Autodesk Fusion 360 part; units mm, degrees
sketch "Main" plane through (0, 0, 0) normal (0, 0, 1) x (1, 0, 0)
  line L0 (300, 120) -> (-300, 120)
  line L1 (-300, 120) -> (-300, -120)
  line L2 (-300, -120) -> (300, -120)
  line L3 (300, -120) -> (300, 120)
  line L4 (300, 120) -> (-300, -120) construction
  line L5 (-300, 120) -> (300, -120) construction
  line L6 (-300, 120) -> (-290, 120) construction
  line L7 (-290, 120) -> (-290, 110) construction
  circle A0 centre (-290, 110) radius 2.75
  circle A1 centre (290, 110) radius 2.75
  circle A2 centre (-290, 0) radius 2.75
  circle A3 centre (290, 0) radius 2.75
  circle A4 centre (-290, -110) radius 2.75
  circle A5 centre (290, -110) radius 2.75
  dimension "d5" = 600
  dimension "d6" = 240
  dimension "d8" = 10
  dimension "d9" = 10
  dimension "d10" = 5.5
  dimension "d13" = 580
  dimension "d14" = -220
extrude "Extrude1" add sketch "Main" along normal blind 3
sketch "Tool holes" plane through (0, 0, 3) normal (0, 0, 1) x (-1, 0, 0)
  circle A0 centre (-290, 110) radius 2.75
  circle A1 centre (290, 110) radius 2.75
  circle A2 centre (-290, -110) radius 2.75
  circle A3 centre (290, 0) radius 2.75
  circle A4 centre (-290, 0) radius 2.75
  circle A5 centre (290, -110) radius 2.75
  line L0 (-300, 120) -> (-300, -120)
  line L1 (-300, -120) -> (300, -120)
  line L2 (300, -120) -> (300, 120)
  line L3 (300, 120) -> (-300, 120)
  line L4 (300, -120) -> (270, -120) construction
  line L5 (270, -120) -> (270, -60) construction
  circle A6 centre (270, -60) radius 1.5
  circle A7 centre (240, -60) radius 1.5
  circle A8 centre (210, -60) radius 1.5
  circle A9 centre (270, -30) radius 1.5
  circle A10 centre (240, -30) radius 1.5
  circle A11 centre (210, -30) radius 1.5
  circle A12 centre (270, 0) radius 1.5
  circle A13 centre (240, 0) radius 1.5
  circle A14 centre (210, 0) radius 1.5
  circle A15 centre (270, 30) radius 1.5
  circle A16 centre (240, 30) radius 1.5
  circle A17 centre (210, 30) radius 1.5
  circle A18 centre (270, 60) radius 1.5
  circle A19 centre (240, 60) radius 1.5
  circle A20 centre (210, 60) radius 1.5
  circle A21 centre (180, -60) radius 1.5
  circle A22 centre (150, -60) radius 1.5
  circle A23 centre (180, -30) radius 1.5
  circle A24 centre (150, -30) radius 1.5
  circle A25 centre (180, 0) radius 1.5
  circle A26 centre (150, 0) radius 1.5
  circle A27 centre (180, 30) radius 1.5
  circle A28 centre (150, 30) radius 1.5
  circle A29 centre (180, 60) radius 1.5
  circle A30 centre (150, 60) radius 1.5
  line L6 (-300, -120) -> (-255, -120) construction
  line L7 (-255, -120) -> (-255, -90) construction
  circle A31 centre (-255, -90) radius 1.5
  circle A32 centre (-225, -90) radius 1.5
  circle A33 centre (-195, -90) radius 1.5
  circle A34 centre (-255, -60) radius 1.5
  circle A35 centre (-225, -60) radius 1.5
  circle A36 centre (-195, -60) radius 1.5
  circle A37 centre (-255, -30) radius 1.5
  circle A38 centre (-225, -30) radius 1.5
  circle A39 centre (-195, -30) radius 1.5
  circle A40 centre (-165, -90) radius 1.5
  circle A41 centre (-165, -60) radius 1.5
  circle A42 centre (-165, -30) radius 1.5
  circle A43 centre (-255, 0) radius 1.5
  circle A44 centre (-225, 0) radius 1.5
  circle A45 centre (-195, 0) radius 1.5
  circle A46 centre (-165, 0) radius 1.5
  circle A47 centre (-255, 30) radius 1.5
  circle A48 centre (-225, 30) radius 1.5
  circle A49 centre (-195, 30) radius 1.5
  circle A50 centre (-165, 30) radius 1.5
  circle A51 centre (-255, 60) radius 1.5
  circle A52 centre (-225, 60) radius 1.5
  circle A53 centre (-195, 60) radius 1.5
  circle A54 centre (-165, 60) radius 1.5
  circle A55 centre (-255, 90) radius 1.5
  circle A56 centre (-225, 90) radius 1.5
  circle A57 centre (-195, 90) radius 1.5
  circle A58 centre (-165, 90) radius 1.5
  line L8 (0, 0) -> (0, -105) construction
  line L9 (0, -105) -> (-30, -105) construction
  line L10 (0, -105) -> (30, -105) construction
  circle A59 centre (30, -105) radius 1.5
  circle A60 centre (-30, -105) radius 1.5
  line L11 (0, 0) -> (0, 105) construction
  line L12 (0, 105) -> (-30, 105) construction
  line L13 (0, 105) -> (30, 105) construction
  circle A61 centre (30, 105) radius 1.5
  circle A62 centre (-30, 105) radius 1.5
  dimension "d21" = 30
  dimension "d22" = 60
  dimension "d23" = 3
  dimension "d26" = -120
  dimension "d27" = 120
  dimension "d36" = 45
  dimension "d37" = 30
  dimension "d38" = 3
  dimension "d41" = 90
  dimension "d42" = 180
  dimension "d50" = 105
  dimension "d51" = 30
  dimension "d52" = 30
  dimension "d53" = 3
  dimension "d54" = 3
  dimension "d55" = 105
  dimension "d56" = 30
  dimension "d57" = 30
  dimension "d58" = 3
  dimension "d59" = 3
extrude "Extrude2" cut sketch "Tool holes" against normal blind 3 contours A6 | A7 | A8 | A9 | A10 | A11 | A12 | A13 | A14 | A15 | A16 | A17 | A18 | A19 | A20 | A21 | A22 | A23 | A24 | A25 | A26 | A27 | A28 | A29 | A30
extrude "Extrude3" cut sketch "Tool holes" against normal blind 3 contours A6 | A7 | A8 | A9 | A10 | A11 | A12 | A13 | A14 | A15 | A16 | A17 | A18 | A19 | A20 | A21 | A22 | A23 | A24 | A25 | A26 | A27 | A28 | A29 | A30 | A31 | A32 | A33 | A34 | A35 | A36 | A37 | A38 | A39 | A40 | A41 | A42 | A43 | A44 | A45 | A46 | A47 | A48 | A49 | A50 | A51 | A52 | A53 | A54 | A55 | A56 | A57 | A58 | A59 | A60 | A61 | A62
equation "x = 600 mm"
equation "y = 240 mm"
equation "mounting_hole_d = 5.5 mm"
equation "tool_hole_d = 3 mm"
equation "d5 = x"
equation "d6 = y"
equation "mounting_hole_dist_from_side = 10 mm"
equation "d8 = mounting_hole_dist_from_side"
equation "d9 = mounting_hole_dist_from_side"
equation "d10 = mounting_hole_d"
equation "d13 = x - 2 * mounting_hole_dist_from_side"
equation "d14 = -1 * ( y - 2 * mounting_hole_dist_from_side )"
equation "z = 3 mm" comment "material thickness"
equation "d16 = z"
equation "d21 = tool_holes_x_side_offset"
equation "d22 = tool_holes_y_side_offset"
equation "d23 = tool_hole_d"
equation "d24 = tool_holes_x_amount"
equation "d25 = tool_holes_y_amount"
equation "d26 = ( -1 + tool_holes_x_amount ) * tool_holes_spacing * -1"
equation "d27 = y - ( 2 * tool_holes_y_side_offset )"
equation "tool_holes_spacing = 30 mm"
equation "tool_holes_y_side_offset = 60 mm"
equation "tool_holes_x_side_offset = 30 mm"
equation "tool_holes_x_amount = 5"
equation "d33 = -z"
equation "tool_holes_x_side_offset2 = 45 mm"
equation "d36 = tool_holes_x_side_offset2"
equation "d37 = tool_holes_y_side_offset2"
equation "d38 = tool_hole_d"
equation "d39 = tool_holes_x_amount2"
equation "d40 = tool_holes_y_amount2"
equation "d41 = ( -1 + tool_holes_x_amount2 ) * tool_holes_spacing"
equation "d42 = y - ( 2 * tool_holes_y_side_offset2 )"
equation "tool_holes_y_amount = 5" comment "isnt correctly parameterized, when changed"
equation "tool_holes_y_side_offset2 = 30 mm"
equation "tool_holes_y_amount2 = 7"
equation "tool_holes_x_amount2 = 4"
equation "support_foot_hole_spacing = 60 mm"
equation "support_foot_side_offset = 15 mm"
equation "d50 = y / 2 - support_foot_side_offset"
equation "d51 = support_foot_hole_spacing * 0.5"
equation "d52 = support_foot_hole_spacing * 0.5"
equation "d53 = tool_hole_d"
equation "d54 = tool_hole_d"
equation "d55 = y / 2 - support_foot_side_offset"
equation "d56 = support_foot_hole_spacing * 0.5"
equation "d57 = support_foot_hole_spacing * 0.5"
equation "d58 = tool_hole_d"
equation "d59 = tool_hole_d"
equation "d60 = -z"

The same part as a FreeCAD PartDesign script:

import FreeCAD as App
import Part
import Sketcher


def add_polygon(sketch, points):
    """Adds a closed chain of lines whose ends are joined by coincident constraints."""
    first, n = sketch.GeometryCount, len(points)
    for a, b in zip(points, points[1:] + points[:1]):
        sketch.addGeometry(Part.LineSegment(App.Vector(*a, 0), App.Vector(*b, 0)), False)
    for i in range(n):
        sketch.addConstraint(Sketcher.Constraint("Coincident", first + i, 2, first + (i + 1) % n, 1))

doc = App.newDocument("Part")
body = doc.addObject("PartDesign::Body", "Body")

# Sketch on XY plane
sketch1 = doc.addObject("Sketcher::SketchObject", "Sketch")
body.addObject(sketch1)
sketch1.AttachmentSupport = (doc.XY_Plane, [""])
sketch1.MapMode = "FlatFace"
add_polygon(sketch1, [(300, -120), (300, 120), (-300, 120), (-300, -120)])  # lines 0-3
sketch1.addGeometry(Part.Circle(App.Vector(-290, -110, 0), App.Vector(0, 0, 1), 2.8), False)  # 4
sketch1.addGeometry(Part.Circle(App.Vector(290, -110, 0), App.Vector(0, 0, 1), 2.8), False)  # 5
sketch1.addGeometry(Part.Circle(App.Vector(-290, 0, 0), App.Vector(0, 0, 1), 2.8), False)  # 6
sketch1.addGeometry(Part.Circle(App.Vector(-290, 110, 0), App.Vector(0, 0, 1), 2.8), False)  # 7
sketch1.addGeometry(Part.Circle(App.Vector(290, 0, 0), App.Vector(0, 0, 1), 2.8), False)  # 8
sketch1.addGeometry(Part.Circle(App.Vector(290, 110, 0), App.Vector(0, 0, 1), 2.8), False)  # 9
sketch1.addConstraint([
    Sketcher.Constraint("Vertical", 0),
    Sketcher.Constraint("Horizontal", 1),
    Sketcher.Constraint("Vertical", 2),
    Sketcher.Constraint("Horizontal", 3),
    Sketcher.Constraint("Equal", 4, 5),
    Sketcher.Constraint("Equal", 5, 6),
    Sketcher.Constraint("Equal", 6, 7),
    Sketcher.Constraint("Equal", 7, 8),
    Sketcher.Constraint("Equal", 8, 9),
    Sketcher.Constraint("Symmetric", 5, 3, 7, 3, -1, 1),
    Sketcher.Constraint("Symmetric", 6, 3, 8, 3, -1, 1),
    Sketcher.Constraint("Symmetric", 4, 3, 9, 3, -1, 1),
    Sketcher.Constraint("Symmetric", 0, 2, 2, 2, -1, 1),
    Sketcher.Constraint("Symmetric", 4, 3, 5, 3, -2),
    Sketcher.Constraint("PointOnObject", 6, 3, -1),
    Sketcher.Constraint("Vertical", 4, 3, 6, 3),
    Sketcher.Constraint("Diameter", 4, 5.5),
    Sketcher.Constraint("DistanceX", 1, 2, 1, 1, 600.0),
    Sketcher.Constraint("DistanceY", 0, 1, 0, 2, 240.0),
    Sketcher.Constraint("DistanceX", 4, 3, 5, 3, 580.0),
    Sketcher.Constraint("DistanceY", 4, 3, 7, 3, 220.0),
])
pad1 = doc.addObject("PartDesign::Pad", "Pad")
body.addObject(pad1)
pad1.Profile = sketch1
pad1.Length = 3

# Sketch on XY plane
sketch2 = doc.addObject("Sketcher::SketchObject", "Sketch001")
body.addObject(sketch2)
sketch2.AttachmentSupport = (doc.XY_Plane, [""])
sketch2.MapMode = "FlatFace"
sketch2.AttachmentOffset = App.Placement(App.Vector(0, 0, 3), App.Rotation())
sketch2.addGeometry([
    Part.Circle(App.Vector(-270, 60, 0), App.Vector(0, 0, 1), 1.5),  # 0
    Part.Circle(App.Vector(-240, 60, 0), App.Vector(0, 0, 1), 1.5),  # 1
    Part.Circle(App.Vector(-210, 60, 0), App.Vector(0, 0, 1), 1.5),  # 2
    Part.Circle(App.Vector(-270, 30, 0), App.Vector(0, 0, 1), 1.5),  # 3
    Part.Circle(App.Vector(-240, 30, 0), App.Vector(0, 0, 1), 1.5),  # 4
    Part.Circle(App.Vector(-210, 30, 0), App.Vector(0, 0, 1), 1.5),  # 5
    Part.Circle(App.Vector(-270, 0, 0), App.Vector(0, 0, 1), 1.5),  # 6
    Part.Circle(App.Vector(-240, 0, 0), App.Vector(0, 0, 1), 1.5),  # 7
    Part.Circle(App.Vector(-210, 0, 0), App.Vector(0, 0, 1), 1.5),  # 8
    Part.Circle(App.Vector(-270, -30, 0), App.Vector(0, 0, 1), 1.5),  # 9
    Part.Circle(App.Vector(-240, -30, 0), App.Vector(0, 0, 1), 1.5),  # 10
    Part.Circle(App.Vector(-210, -30, 0), App.Vector(0, 0, 1), 1.5),  # 11
    Part.Circle(App.Vector(-270, -60, 0), App.Vector(0, 0, 1), 1.5),  # 12
    Part.Circle(App.Vector(-240, -60, 0), App.Vector(0, 0, 1), 1.5),  # 13
    Part.Circle(App.Vector(-210, -60, 0), App.Vector(0, 0, 1), 1.5),  # 14
    Part.Circle(App.Vector(-180, 60, 0), App.Vector(0, 0, 1), 1.5),  # 15
    Part.Circle(App.Vector(-150, 60, 0), App.Vector(0, 0, 1), 1.5),  # 16
    Part.Circle(App.Vector(-180, 30, 0), App.Vector(0, 0, 1), 1.5),  # 17
    Part.Circle(App.Vector(-150, 30, 0), App.Vector(0, 0, 1), 1.5),  # 18
    Part.Circle(App.Vector(-180, 0, 0), App.Vector(0, 0, 1), 1.5),  # 19
    Part.Circle(App.Vector(-150, 0, 0), App.Vector(0, 0, 1), 1.5),  # 20
    Part.Circle(App.Vector(-180, -30, 0), App.Vector(0, 0, 1), 1.5),  # 21
    Part.Circle(App.Vector(-150, -30, 0), App.Vector(0, 0, 1), 1.5),  # 22
    Part.Circle(App.Vector(-180, -60, 0), App.Vector(0, 0, 1), 1.5),  # 23
    Part.Circle(App.Vector(-150, -60, 0), App.Vector(0, 0, 1), 1.5),  # 24
], False)
sketch2.addConstraint([
    Sketcher.Constraint("Equal", 0, 1),
    Sketcher.Constraint("Equal", 1, 2),
    Sketcher.Constraint("Equal", 2, 3),
    Sketcher.Constraint("Equal", 3, 4),
    Sketcher.Constraint("Equal", 4, 5),
    Sketcher.Constraint("Equal", 5, 6),
    Sketcher.Constraint("Equal", 6, 7),
    Sketcher.Constraint("Equal", 7, 8),
    Sketcher.Constraint("Equal", 8, 9),
    Sketcher.Constraint("Equal", 9, 10),
    Sketcher.Constraint("Equal", 10, 11),
    Sketcher.Constraint("Equal", 11, 12),
    Sketcher.Constraint("Equal", 12, 13),
    Sketcher.Constraint("Equal", 13, 14),
    Sketcher.Constraint("Equal", 14, 15),
    Sketcher.Constraint("Equal", 15, 16),
    Sketcher.Constraint("Equal", 16, 17),
    Sketcher.Constraint("Equal", 17, 18),
    Sketcher.Constraint("Equal", 18, 19),
    Sketcher.Constraint("Equal", 19, 20),
    Sketcher.Constraint("Equal", 20, 21),
    Sketcher.Constraint("Equal", 21, 22),
    Sketcher.Constraint("Equal", 22, 23),
    Sketcher.Constraint("Equal", 23, 24),
    Sketcher.Constraint("Symmetric", 3, 3, 9, 3, -1),
    Sketcher.Constraint("Symmetric", 4, 3, 10, 3, -1),
    Sketcher.Constraint("Symmetric", 5, 3, 11, 3, -1),
    Sketcher.Constraint("Symmetric", 0, 3, 12, 3, -1),
    Sketcher.Constraint("Symmetric", 1, 3, 13, 3, -1),
    Sketcher.Constraint("Symmetric", 2, 3, 14, 3, -1),
    Sketcher.Constraint("Symmetric", 17, 3, 21, 3, -1),
    Sketcher.Constraint("Symmetric", 18, 3, 22, 3, -1),
    Sketcher.Constraint("Symmetric", 15, 3, 23, 3, -1),
    Sketcher.Constraint("Symmetric", 16, 3, 24, 3, -1),
    Sketcher.Constraint("PointOnObject", 6, 3, -1),
    Sketcher.Constraint("PointOnObject", 7, 3, -1),
    Sketcher.Constraint("PointOnObject", 8, 3, -1),
    Sketcher.Constraint("PointOnObject", 19, 3, -1),
    Sketcher.Constraint("PointOnObject", 20, 3, -1),
    Sketcher.Constraint("Horizontal", 0, 3, 1, 3),
    Sketcher.Constraint("Horizontal", 1, 3, 2, 3),
    Sketcher.Constraint("Horizontal", 3, 3, 4, 3),
    Sketcher.Constraint("Horizontal", 4, 3, 5, 3),
    Sketcher.Constraint("Horizontal", 2, 3, 15, 3),
    Sketcher.Constraint("Horizontal", 15, 3, 16, 3),
    Sketcher.Constraint("Horizontal", 5, 3, 17, 3),
    Sketcher.Constraint("Horizontal", 17, 3, 18, 3),
    Sketcher.Constraint("Vertical", 0, 3, 3, 3),
    Sketcher.Constraint("Vertical", 1, 3, 4, 3),
    Sketcher.Constraint("Vertical", 2, 3, 5, 3),
    Sketcher.Constraint("Vertical", 3, 3, 6, 3),
    Sketcher.Constraint("Vertical", 4, 3, 7, 3),
    Sketcher.Constraint("Vertical", 5, 3, 8, 3),
    Sketcher.Constraint("Vertical", 15, 3, 17, 3),
    Sketcher.Constraint("Vertical", 16, 3, 18, 3),
    Sketcher.Constraint("Vertical", 17, 3, 19, 3),
    Sketcher.Constraint("Vertical", 18, 3, 20, 3),
    Sketcher.Constraint("Diameter", 0, 3.0),
    Sketcher.Constraint("DistanceY", -1, 1, 0, 3, 60.0),
    Sketcher.Constraint("DistanceY", -1, 1, 3, 3, 30.0),
    Sketcher.Constraint("DistanceX", 15, 3, -1, 1, 180.0),
    Sketcher.Constraint("DistanceX", 0, 3, 1, 3, 30.0),
    Sketcher.Constraint("DistanceX", 1, 3, 2, 3, 30.0),
    Sketcher.Constraint("DistanceX", 2, 3, 15, 3, 30.0),
    Sketcher.Constraint("DistanceX", 15, 3, 16, 3, 30.0),
])
pocket1 = doc.addObject("PartDesign::Pocket", "Pocket")
body.addObject(pocket1)
pocket1.Profile = sketch2
pocket1.Length = 3

# Sketch on XY plane
sketch3 = doc.addObject("Sketcher::SketchObject", "Sketch002")
body.addObject(sketch3)
sketch3.AttachmentSupport = (doc.XY_Plane, [""])
sketch3.MapMode = "FlatFace"
sketch3.AttachmentOffset = App.Placement(App.Vector(0, 0, 3), App.Rotation())
sketch3.addGeometry([
    Part.Circle(App.Vector(-270, 60, 0), App.Vector(0, 0, 1), 1.5),  # 0
    Part.Circle(App.Vector(-240, 60, 0), App.Vector(0, 0, 1), 1.5),  # 1
    Part.Circle(App.Vector(-210, 60, 0), App.Vector(0, 0, 1), 1.5),  # 2
    Part.Circle(App.Vector(-270, 30, 0), App.Vector(0, 0, 1), 1.5),  # 3
    Part.Circle(App.Vector(-240, 30, 0), App.Vector(0, 0, 1), 1.5),  # 4
    Part.Circle(App.Vector(-210, 30, 0), App.Vector(0, 0, 1), 1.5),  # 5
    Part.Circle(App.Vector(-270, 0, 0), App.Vector(0, 0, 1), 1.5),  # 6
    Part.Circle(App.Vector(-240, 0, 0), App.Vector(0, 0, 1), 1.5),  # 7
    Part.Circle(App.Vector(-210, 0, 0), App.Vector(0, 0, 1), 1.5),  # 8
    Part.Circle(App.Vector(-270, -30, 0), App.Vector(0, 0, 1), 1.5),  # 9
    Part.Circle(App.Vector(-240, -30, 0), App.Vector(0, 0, 1), 1.5),  # 10
    Part.Circle(App.Vector(-210, -30, 0), App.Vector(0, 0, 1), 1.5),  # 11
    Part.Circle(App.Vector(-270, -60, 0), App.Vector(0, 0, 1), 1.5),  # 12
    Part.Circle(App.Vector(-240, -60, 0), App.Vector(0, 0, 1), 1.5),  # 13
    Part.Circle(App.Vector(-210, -60, 0), App.Vector(0, 0, 1), 1.5),  # 14
    Part.Circle(App.Vector(-180, 60, 0), App.Vector(0, 0, 1), 1.5),  # 15
    Part.Circle(App.Vector(-150, 60, 0), App.Vector(0, 0, 1), 1.5),  # 16
    Part.Circle(App.Vector(-180, 30, 0), App.Vector(0, 0, 1), 1.5),  # 17
    Part.Circle(App.Vector(-150, 30, 0), App.Vector(0, 0, 1), 1.5),  # 18
    Part.Circle(App.Vector(-180, 0, 0), App.Vector(0, 0, 1), 1.5),  # 19
    Part.Circle(App.Vector(-150, 0, 0), App.Vector(0, 0, 1), 1.5),  # 20
    Part.Circle(App.Vector(-180, -30, 0), App.Vector(0, 0, 1), 1.5),  # 21
    Part.Circle(App.Vector(-150, -30, 0), App.Vector(0, 0, 1), 1.5),  # 22
    Part.Circle(App.Vector(-180, -60, 0), App.Vector(0, 0, 1), 1.5),  # 23
    Part.Circle(App.Vector(-150, -60, 0), App.Vector(0, 0, 1), 1.5),  # 24
    Part.Circle(App.Vector(255, 90, 0), App.Vector(0, 0, 1), 1.5),  # 25
    Part.Circle(App.Vector(225, 90, 0), App.Vector(0, 0, 1), 1.5),  # 26
    Part.Circle(App.Vector(195, 90, 0), App.Vector(0, 0, 1), 1.5),  # 27
    Part.Circle(App.Vector(255, 60, 0), App.Vector(0, 0, 1), 1.5),  # 28
    Part.Circle(App.Vector(225, 60, 0), App.Vector(0, 0, 1), 1.5),  # 29
    Part.Circle(App.Vector(195, 60, 0), App.Vector(0, 0, 1), 1.5),  # 30
    Part.Circle(App.Vector(255, 30, 0), App.Vector(0, 0, 1), 1.5),  # 31
    Part.Circle(App.Vector(225, 30, 0), App.Vector(0, 0, 1), 1.5),  # 32
    Part.Circle(App.Vector(195, 30, 0), App.Vector(0, 0, 1), 1.5),  # 33
    Part.Circle(App.Vector(165, 90, 0), App.Vector(0, 0, 1), 1.5),  # 34
    Part.Circle(App.Vector(165, 60, 0), App.Vector(0, 0, 1), 1.5),  # 35
    Part.Circle(App.Vector(165, 30, 0), App.Vector(0, 0, 1), 1.5),  # 36
    Part.Circle(App.Vector(255, 0, 0), App.Vector(0, 0, 1), 1.5),  # 37
    Part.Circle(App.Vector(225, 0, 0), App.Vector(0, 0, 1), 1.5),  # 38
    Part.Circle(App.Vector(195, 0, 0), App.Vector(0, 0, 1), 1.5),  # 39
    Part.Circle(App.Vector(165, 0, 0), App.Vector(0, 0, 1), 1.5),  # 40
    Part.Circle(App.Vector(255, -30, 0), App.Vector(0, 0, 1), 1.5),  # 41
    Part.Circle(App.Vector(225, -30, 0), App.Vector(0, 0, 1), 1.5),  # 42
    Part.Circle(App.Vector(195, -30, 0), App.Vector(0, 0, 1), 1.5),  # 43
    Part.Circle(App.Vector(165, -30, 0), App.Vector(0, 0, 1), 1.5),  # 44
    Part.Circle(App.Vector(255, -60, 0), App.Vector(0, 0, 1), 1.5),  # 45
    Part.Circle(App.Vector(225, -60, 0), App.Vector(0, 0, 1), 1.5),  # 46
    Part.Circle(App.Vector(195, -60, 0), App.Vector(0, 0, 1), 1.5),  # 47
    Part.Circle(App.Vector(165, -60, 0), App.Vector(0, 0, 1), 1.5),  # 48
    Part.Circle(App.Vector(255, -90, 0), App.Vector(0, 0, 1), 1.5),  # 49
    Part.Circle(App.Vector(225, -90, 0), App.Vector(0, 0, 1), 1.5),  # 50
    Part.Circle(App.Vector(195, -90, 0), App.Vector(0, 0, 1), 1.5),  # 51
    Part.Circle(App.Vector(165, -90, 0), App.Vector(0, 0, 1), 1.5),  # 52
    Part.Circle(App.Vector(-30, 105, 0), App.Vector(0, 0, 1), 1.5),  # 53
    Part.Circle(App.Vector(30, 105, 0), App.Vector(0, 0, 1), 1.5),  # 54
    Part.Circle(App.Vector(-30, -105, 0), App.Vector(0, 0, 1), 1.5),  # 55
    Part.Circle(App.Vector(30, -105, 0), App.Vector(0, 0, 1), 1.5),  # 56
], False)
sketch3.addConstraint([
    Sketcher.Constraint("Equal", 0, 1),
    Sketcher.Constraint("Equal", 1, 2),
    Sketcher.Constraint("Equal", 2, 3),
    Sketcher.Constraint("Equal", 3, 4),
    Sketcher.Constraint("Equal", 4, 5),
    Sketcher.Constraint("Equal", 5, 6),
    Sketcher.Constraint("Equal", 6, 7),
    Sketcher.Constraint("Equal", 7, 8),
    Sketcher.Constraint("Equal", 8, 9),
    Sketcher.Constraint("Equal", 9, 10),
    Sketcher.Constraint("Equal", 10, 11),
    Sketcher.Constraint("Equal", 11, 12),
    Sketcher.Constraint("Equal", 12, 13),
    Sketcher.Constraint("Equal", 13, 14),
    Sketcher.Constraint("Equal", 14, 15),
    Sketcher.Constraint("Equal", 15, 16),
    Sketcher.Constraint("Equal", 16, 17),
    Sketcher.Constraint("Equal", 17, 18),
    Sketcher.Constraint("Equal", 18, 19),
    Sketcher.Constraint("Equal", 19, 20),
    Sketcher.Constraint("Equal", 20, 21),
    Sketcher.Constraint("Equal", 21, 22),
    Sketcher.Constraint("Equal", 22, 23),
    Sketcher.Constraint("Equal", 23, 24),
    Sketcher.Constraint("Equal", 24, 25),
    Sketcher.Constraint("Equal", 25, 26),
    Sketcher.Constraint("Equal", 26, 27),
    Sketcher.Constraint("Equal", 27, 28),
    Sketcher.Constraint("Equal", 28, 29),
    Sketcher.Constraint("Equal", 29, 30),
    Sketcher.Constraint("Equal", 30, 31),
    Sketcher.Constraint("Equal", 31, 32),
    Sketcher.Constraint("Equal", 32, 33),
    Sketcher.Constraint("Equal", 33, 34),
    Sketcher.Constraint("Equal", 34, 35),
    Sketcher.Constraint("Equal", 35, 36),
    Sketcher.Constraint("Equal", 36, 37),
    Sketcher.Constraint("Equal", 37, 38),
    Sketcher.Constraint("Equal", 38, 39),
    Sketcher.Constraint("Equal", 39, 40),
    Sketcher.Constraint("Equal", 40, 41),
    Sketcher.Constraint("Equal", 41, 42),
    Sketcher.Constraint("Equal", 42, 43),
    Sketcher.Constraint("Equal", 43, 44),
    Sketcher.Constraint("Equal", 44, 45),
    Sketcher.Constraint("Equal", 45, 46),
    Sketcher.Constraint("Equal", 46, 47),
    Sketcher.Constraint("Equal", 47, 48),
    Sketcher.Constraint("Equal", 48, 49),
    Sketcher.Constraint("Equal", 49, 50),
    Sketcher.Constraint("Equal", 50, 51),
    Sketcher.Constraint("Equal", 51, 52),
    Sketcher.Constraint("Equal", 52, 53),
    Sketcher.Constraint("Equal", 53, 54),
    Sketcher.Constraint("Equal", 54, 55),
    Sketcher.Constraint("Equal", 55, 56),
    Sketcher.Constraint("Symmetric", 54, 3, 55, 3, -1, 1),
    Sketcher.Constraint("Symmetric", 53, 3, 56, 3, -1, 1),
    Sketcher.Constraint("Symmetric", 53, 3, 54, 3, -2),
    Sketcher.Constraint("Symmetric", 3, 3, 9, 3, -1),
    Sketcher.Constraint("Symmetric", 4, 3, 10, 3, -1),
    Sketcher.Constraint("Symmetric", 5, 3, 11, 3, -1),
    Sketcher.Constraint("Symmetric", 0, 3, 12, 3, -1),
    Sketcher.Constraint("Symmetric", 1, 3, 13, 3, -1),
    Sketcher.Constraint("Symmetric", 2, 3, 14, 3, -1),
    Sketcher.Constraint("Symmetric", 17, 3, 21, 3, -1),
    Sketcher.Constraint("Symmetric", 18, 3, 22, 3, -1),
    Sketcher.Constraint("Symmetric", 15, 3, 23, 3, -1),
    Sketcher.Constraint("Symmetric", 16, 3, 24, 3, -1),
    Sketcher.Constraint("Symmetric", 31, 3, 41, 3, -1),
    Sketcher.Constraint("Symmetric", 32, 3, 42, 3, -1),
    Sketcher.Constraint("Symmetric", 33, 3, 43, 3, -1),
    Sketcher.Constraint("Symmetric", 36, 3, 44, 3, -1),
    Sketcher.Constraint("Symmetric", 28, 3, 45, 3, -1),
    Sketcher.Constraint("Symmetric", 29, 3, 46, 3, -1),
    Sketcher.Constraint("Symmetric", 30, 3, 47, 3, -1),
    Sketcher.Constraint("Symmetric", 35, 3, 48, 3, -1),
    Sketcher.Constraint("Symmetric", 25, 3, 49, 3, -1),
    Sketcher.Constraint("Symmetric", 26, 3, 50, 3, -1),
    Sketcher.Constraint("Symmetric", 27, 3, 51, 3, -1),
    Sketcher.Constraint("Symmetric", 34, 3, 52, 3, -1),
    Sketcher.Constraint("PointOnObject", 6, 3, -1),
    Sketcher.Constraint("PointOnObject", 7, 3, -1),
    Sketcher.Constraint("PointOnObject", 8, 3, -1),
    Sketcher.Constraint("PointOnObject", 19, 3, -1),
    Sketcher.Constraint("PointOnObject", 20, 3, -1),
    Sketcher.Constraint("PointOnObject", 37, 3, -1),
    Sketcher.Constraint("PointOnObject", 38, 3, -1),
    Sketcher.Constraint("PointOnObject", 39, 3, -1),
    Sketcher.Constraint("PointOnObject", 40, 3, -1),
    Sketcher.Constraint("Horizontal", 0, 3, 1, 3),
    Sketcher.Constraint("Horizontal", 1, 3, 2, 3),
    Sketcher.Constraint("Horizontal", 3, 3, 4, 3),
    Sketcher.Constraint("Horizontal", 4, 3, 5, 3),
    Sketcher.Constraint("Horizontal", 2, 3, 15, 3),
    Sketcher.Constraint("Horizontal", 15, 3, 16, 3),
    Sketcher.Constraint("Horizontal", 5, 3, 17, 3),
    Sketcher.Constraint("Horizontal", 17, 3, 18, 3),
    Sketcher.Constraint("Horizontal", 25, 3, 26, 3),
    Sketcher.Constraint("Horizontal", 26, 3, 27, 3),
    Sketcher.Constraint("Horizontal", 16, 3, 28, 3),
    Sketcher.Constraint("Horizontal", 28, 3, 29, 3),
    Sketcher.Constraint("Horizontal", 29, 3, 30, 3),
    Sketcher.Constraint("Horizontal", 18, 3, 31, 3),
    Sketcher.Constraint("Horizontal", 31, 3, 32, 3),
    Sketcher.Constraint("Horizontal", 32, 3, 33, 3),
    Sketcher.Constraint("Horizontal", 27, 3, 34, 3),
    Sketcher.Constraint("Horizontal", 30, 3, 35, 3),
    Sketcher.Constraint("Horizontal", 33, 3, 36, 3),
    Sketcher.Constraint("Vertical", 0, 3, 3, 3),
    Sketcher.Constraint("Vertical", 1, 3, 4, 3),
    Sketcher.Constraint("Vertical", 2, 3, 5, 3),
    Sketcher.Constraint("Vertical", 3, 3, 6, 3),
    Sketcher.Constraint("Vertical", 4, 3, 7, 3),
    Sketcher.Constraint("Vertical", 5, 3, 8, 3),
    Sketcher.Constraint("Vertical", 15, 3, 17, 3),
    Sketcher.Constraint("Vertical", 16, 3, 18, 3),
    Sketcher.Constraint("Vertical", 17, 3, 19, 3),
    Sketcher.Constraint("Vertical", 18, 3, 20, 3),
    Sketcher.Constraint("Vertical", 25, 3, 28, 3),
    Sketcher.Constraint("Vertical", 26, 3, 29, 3),
    Sketcher.Constraint("Vertical", 27, 3, 30, 3),
    Sketcher.Constraint("Vertical", 28, 3, 31, 3),
    Sketcher.Constraint("Vertical", 29, 3, 32, 3),
    Sketcher.Constraint("Vertical", 30, 3, 33, 3),
    Sketcher.Constraint("Vertical", 34, 3, 35, 3),
    Sketcher.Constraint("Vertical", 35, 3, 36, 3),
    Sketcher.Constraint("Vertical", 31, 3, 37, 3),
    Sketcher.Constraint("Vertical", 32, 3, 38, 3),
    Sketcher.Constraint("Vertical", 33, 3, 39, 3),
    Sketcher.Constraint("Vertical", 36, 3, 40, 3),
    Sketcher.Constraint("Diameter", 0, 3.0),
    Sketcher.Constraint("DistanceY", -1, 1, 0, 3, 60.0),
    Sketcher.Constraint("DistanceY", -1, 1, 3, 3, 30.0),
    Sketcher.Constraint("DistanceX", 15, 3, -1, 1, 180.0),
    Sketcher.Constraint("DistanceY", -1, 1, 25, 3, 90.0),
    Sketcher.Constraint("DistanceX", 53, 3, -1, 1, 30.0),
    Sketcher.Constraint("DistanceY", -1, 1, 53, 3, 105.0),
    Sketcher.Constraint("DistanceX", 0, 3, 1, 3, 30.0),
    Sketcher.Constraint("DistanceX", 1, 3, 2, 3, 30.0),
    Sketcher.Constraint("DistanceX", 2, 3, 15, 3, 30.0),
    Sketcher.Constraint("DistanceX", 15, 3, 16, 3, 30.0),
    Sketcher.Constraint("DistanceX", 26, 3, 25, 3, 30.0),
    Sketcher.Constraint("DistanceX", 27, 3, 26, 3, 30.0),
    Sketcher.Constraint("DistanceX", 34, 3, 27, 3, 30.0),
    Sketcher.Constraint("DistanceX", -1, 1, 25, 3, 255.0),
])
pocket2 = doc.addObject("PartDesign::Pocket", "Pocket001")
body.addObject(pocket2)
pocket2.Profile = sketch3
pocket2.Length = 3

doc.recompute()
